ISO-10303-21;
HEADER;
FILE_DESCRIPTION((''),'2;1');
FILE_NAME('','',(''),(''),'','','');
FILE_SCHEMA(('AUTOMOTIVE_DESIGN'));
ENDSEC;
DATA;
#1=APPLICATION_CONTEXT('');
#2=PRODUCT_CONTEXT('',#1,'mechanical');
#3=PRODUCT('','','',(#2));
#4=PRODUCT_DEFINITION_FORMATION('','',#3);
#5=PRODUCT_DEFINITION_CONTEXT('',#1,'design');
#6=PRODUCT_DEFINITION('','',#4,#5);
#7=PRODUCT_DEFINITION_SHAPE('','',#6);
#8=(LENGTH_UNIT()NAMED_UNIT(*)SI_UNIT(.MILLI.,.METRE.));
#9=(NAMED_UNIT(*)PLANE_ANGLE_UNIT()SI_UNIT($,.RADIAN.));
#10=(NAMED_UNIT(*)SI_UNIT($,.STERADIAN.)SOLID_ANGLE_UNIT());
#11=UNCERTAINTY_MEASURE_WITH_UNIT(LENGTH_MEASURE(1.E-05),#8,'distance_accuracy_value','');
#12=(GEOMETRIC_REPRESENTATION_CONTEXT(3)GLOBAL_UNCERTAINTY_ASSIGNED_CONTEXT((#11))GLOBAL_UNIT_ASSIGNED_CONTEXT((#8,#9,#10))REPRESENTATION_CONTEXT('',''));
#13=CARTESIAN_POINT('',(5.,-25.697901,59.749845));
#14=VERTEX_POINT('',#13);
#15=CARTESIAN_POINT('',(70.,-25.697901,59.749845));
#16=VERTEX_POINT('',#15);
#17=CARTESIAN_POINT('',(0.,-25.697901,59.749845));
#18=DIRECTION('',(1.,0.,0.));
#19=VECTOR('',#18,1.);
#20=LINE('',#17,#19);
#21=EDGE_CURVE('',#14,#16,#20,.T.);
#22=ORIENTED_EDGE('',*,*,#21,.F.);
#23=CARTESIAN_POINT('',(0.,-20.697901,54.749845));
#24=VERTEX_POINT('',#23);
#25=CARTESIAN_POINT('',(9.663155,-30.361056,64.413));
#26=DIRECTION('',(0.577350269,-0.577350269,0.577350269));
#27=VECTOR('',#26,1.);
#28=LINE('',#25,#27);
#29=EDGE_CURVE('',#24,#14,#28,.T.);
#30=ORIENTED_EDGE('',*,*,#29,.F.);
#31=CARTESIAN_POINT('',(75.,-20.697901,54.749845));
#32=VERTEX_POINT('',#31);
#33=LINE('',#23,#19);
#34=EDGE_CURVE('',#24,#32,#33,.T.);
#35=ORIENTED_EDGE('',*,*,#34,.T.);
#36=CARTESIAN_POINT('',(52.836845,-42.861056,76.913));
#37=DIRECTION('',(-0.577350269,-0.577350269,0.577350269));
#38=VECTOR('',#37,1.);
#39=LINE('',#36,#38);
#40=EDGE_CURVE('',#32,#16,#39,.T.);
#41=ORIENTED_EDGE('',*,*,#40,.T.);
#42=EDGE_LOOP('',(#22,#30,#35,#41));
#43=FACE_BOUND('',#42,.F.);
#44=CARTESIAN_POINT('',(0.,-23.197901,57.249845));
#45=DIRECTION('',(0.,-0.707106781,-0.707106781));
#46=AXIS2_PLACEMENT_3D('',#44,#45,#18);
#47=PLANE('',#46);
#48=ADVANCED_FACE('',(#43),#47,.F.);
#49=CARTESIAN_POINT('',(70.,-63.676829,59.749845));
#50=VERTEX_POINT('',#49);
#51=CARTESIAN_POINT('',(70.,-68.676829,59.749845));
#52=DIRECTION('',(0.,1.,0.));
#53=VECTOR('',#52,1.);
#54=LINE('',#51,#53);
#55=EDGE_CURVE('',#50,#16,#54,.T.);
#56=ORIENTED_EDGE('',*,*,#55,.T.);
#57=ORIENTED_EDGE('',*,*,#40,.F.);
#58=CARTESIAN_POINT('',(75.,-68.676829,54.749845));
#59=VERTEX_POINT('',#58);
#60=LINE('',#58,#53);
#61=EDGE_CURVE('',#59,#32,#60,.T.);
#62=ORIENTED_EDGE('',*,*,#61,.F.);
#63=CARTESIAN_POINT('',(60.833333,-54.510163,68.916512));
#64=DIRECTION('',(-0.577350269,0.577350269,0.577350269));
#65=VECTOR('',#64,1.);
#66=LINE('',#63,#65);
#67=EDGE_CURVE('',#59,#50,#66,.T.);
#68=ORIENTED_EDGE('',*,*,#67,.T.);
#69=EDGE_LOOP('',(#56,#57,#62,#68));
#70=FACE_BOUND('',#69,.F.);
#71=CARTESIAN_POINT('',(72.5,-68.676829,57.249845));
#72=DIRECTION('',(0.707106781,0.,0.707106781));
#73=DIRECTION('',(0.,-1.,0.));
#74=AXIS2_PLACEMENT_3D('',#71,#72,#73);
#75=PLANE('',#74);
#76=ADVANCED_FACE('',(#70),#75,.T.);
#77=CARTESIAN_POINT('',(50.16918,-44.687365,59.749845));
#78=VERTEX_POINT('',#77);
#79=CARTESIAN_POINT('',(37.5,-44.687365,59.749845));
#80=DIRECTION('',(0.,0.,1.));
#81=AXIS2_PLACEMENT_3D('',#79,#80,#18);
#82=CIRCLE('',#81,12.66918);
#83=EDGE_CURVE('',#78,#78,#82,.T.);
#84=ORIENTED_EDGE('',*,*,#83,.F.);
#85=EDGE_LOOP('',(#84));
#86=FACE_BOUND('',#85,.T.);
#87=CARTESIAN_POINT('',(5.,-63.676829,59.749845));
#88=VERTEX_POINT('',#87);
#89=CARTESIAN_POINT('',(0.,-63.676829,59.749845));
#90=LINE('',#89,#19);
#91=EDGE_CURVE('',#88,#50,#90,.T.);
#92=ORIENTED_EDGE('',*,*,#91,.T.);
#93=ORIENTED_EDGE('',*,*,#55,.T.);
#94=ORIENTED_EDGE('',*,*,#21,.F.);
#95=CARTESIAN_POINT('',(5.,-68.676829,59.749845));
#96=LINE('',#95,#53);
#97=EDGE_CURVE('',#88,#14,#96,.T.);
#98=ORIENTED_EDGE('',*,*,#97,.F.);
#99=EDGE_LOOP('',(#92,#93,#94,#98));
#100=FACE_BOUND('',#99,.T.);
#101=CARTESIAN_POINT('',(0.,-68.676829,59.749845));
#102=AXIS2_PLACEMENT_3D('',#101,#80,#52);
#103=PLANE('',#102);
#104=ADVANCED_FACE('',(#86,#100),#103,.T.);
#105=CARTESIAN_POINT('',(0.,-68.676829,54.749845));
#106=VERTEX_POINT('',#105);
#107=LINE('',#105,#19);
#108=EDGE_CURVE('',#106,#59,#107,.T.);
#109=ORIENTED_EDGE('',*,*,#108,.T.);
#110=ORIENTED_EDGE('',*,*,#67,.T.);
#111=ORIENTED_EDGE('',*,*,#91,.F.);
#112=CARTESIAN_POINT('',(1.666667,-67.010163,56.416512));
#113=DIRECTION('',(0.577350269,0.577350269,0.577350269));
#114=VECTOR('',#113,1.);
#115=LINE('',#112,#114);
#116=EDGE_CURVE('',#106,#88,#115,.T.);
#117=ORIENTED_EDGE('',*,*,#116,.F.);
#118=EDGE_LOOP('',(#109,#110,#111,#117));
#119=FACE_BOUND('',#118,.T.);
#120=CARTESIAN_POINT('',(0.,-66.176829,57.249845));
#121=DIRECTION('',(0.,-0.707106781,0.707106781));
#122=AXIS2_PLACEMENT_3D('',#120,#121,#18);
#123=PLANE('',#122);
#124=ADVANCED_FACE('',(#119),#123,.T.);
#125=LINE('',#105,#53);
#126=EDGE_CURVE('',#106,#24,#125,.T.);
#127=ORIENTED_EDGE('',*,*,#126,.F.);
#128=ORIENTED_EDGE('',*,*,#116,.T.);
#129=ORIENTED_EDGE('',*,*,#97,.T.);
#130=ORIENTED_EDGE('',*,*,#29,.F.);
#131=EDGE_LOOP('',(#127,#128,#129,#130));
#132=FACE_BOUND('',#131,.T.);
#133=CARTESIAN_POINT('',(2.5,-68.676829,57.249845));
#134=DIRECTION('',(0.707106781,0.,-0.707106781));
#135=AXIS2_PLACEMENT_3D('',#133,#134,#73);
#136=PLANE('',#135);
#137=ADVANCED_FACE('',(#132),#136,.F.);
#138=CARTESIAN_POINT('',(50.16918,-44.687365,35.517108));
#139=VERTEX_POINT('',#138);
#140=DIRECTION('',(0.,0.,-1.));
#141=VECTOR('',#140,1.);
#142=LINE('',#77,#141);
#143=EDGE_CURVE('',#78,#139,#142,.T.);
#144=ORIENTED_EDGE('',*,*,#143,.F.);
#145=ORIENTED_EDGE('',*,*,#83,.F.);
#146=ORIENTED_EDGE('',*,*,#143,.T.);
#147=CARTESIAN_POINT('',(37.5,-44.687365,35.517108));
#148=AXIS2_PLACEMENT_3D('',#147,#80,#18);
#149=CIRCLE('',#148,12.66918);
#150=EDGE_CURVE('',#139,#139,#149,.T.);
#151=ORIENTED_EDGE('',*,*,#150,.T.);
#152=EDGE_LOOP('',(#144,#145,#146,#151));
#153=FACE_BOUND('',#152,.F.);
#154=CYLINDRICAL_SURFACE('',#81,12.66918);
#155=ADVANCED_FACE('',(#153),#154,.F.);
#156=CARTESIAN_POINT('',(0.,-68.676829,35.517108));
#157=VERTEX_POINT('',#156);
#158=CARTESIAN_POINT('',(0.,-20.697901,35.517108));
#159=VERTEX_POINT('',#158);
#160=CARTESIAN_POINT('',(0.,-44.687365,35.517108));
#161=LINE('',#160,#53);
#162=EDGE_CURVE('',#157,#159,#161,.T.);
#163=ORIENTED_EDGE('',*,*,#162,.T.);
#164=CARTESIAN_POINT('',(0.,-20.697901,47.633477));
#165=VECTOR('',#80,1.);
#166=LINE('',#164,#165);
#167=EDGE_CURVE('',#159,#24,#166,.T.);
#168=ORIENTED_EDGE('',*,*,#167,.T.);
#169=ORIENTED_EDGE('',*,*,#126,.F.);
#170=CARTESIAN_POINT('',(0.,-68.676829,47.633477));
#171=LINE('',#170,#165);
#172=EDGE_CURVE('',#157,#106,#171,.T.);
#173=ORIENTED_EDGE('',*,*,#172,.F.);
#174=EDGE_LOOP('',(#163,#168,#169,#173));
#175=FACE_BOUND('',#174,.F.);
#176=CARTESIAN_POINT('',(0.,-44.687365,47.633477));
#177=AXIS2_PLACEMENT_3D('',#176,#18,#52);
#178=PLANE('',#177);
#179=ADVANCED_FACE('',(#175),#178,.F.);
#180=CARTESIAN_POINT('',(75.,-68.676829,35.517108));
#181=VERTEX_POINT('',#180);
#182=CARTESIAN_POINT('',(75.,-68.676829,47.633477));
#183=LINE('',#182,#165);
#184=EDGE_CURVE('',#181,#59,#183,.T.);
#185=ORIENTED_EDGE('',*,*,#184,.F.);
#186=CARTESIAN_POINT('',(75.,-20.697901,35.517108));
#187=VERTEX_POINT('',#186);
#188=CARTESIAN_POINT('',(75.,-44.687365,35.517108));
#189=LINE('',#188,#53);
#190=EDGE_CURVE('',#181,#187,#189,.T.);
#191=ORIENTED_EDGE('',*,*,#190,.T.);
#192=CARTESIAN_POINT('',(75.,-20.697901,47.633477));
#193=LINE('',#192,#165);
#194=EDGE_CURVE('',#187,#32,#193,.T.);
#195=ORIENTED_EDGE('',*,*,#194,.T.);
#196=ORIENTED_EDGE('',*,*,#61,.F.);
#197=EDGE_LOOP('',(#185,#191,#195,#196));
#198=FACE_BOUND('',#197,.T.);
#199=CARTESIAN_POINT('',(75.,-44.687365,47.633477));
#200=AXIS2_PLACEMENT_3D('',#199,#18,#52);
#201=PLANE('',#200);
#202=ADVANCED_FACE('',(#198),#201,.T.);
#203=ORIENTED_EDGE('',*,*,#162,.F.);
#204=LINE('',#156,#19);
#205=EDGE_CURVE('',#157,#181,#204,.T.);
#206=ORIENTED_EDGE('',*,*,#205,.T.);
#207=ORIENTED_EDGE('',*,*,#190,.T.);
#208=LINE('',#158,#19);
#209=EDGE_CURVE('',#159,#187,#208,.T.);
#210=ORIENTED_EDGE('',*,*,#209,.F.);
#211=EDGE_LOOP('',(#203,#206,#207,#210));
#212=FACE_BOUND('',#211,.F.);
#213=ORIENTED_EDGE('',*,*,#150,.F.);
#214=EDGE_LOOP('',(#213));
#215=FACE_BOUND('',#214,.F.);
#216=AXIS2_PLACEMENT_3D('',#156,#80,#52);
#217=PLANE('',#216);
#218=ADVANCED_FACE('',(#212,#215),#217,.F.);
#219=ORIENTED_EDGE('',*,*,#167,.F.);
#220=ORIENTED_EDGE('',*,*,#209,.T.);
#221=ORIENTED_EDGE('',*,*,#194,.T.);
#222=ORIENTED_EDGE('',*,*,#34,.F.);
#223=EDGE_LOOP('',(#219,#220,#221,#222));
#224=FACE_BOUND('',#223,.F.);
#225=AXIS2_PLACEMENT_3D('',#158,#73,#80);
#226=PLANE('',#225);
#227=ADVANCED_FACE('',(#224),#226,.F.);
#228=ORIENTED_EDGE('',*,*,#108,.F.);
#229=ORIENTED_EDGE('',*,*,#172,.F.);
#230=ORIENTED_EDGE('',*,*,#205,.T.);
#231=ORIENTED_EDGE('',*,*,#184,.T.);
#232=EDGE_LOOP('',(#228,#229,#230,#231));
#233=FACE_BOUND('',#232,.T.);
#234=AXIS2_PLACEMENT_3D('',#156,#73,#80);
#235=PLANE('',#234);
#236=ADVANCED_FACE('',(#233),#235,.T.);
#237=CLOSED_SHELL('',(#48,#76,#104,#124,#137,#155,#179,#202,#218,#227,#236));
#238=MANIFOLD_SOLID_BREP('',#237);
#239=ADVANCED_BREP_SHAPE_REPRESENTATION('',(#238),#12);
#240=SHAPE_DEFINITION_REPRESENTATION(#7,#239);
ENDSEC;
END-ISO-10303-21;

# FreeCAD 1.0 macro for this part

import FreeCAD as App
import Part
import Sketcher
from FreeCAD import Vector
Q = App.Units.Quantity


def edges_at(feature, points):
    """Names of the edges that pass closest to the given points."""
    edges = feature.Shape.Edges
    near = lambda p: min(range(len(edges)), key=lambda i: edges[i].distToShape(Part.Vertex(*p))[0])
    return sorted({f"Edge{near(p) + 1}" for p in points})


def add_polygon(sketch, points):
    """Adds a closed chain of lines whose ends are joined by coincident constraints."""
    first, n = sketch.GeometryCount, len(points)
    for a, b in zip(points, points[1:] + points[:1]):
        sketch.addGeometry(Part.LineSegment(App.Vector(*a, 0), App.Vector(*b, 0)), False)
    for i in range(n):
        sketch.addConstraint(Sketcher.Constraint("Coincident", first + i, 2, first + (i + 1) % n, 1))

doc = App.newDocument("Part")
body = doc.addObject("PartDesign::Body", "Body")

sketch1 = body.newObject("Sketcher::SketchObject", "Sketch")
sketch1.AttachmentSupport = (doc.getObject("YZ_Plane"), [""])
sketch1.MapMode = "FlatFace"
add_polygon(sketch1, [(-69, 60), (-69, 36), (-21, 36), (-21, 60)])
sketch1.addConstraint([
    Sketcher.Constraint("Vertical", 0),
    Sketcher.Constraint("Horizontal", 1),
    Sketcher.Constraint("Vertical", 2),
    Sketcher.Constraint("Horizontal", 3),
    Sketcher.Constraint("DistanceX", 1, 1, 1, 2, Q("47.978928 mm")),
    Sketcher.Constraint("DistanceX", 1, 2, -1, 1, Q("20.697901 mm")),
    Sketcher.Constraint("DistanceY", 0, 2, 0, 1, Q("24.232738 mm")),
    Sketcher.Constraint("DistanceY", -1, 1, 0, 2, Q("35.517108 mm")),
])
pad1 = body.newObject("PartDesign::Pad", "Pad")
pad1.Profile = sketch1
pad1.Length = 75
doc.recompute()

chamfer = body.newObject("PartDesign::Chamfer", "Chamfer")
chamfer.Base = (pad1, edges_at(pad1, [
    (37.5, -68.677, 59.75),
    (37.5, -20.698, 59.75),
    (75, -44.687, 59.75),
    (0, -44.687, 59.75),
]))
chamfer.Size = 5

sketch2 = body.newObject("Sketcher::SketchObject", "Sketch001")
sketch2.AttachmentSupport = (doc.getObject("XY_Plane"), [""])
sketch2.MapMode = "FlatFace"
sketch2.AttachmentOffset = App.Placement(Vector(0, 0, 59.749845), App.Rotation())
sketch2.addGeometry(Part.Circle(Vector(38, -45, 0), Vector(0, 0, 1), 13), False)
sketch2.addConstraint([
    Sketcher.Constraint("DistanceX", -1, 1, 0, 3, Q("37.5 mm")),
    Sketcher.Constraint("Diameter", 0, Q("25.33836 mm")),
    Sketcher.Constraint("DistanceY", 0, 3, -1, 1, Q("44.687365 mm")),
])
pocket1 = body.newObject("PartDesign::Pocket", "Pocket")
pocket1.Profile = sketch2
pocket1.Type = "ThroughAll"

doc.recompute()
